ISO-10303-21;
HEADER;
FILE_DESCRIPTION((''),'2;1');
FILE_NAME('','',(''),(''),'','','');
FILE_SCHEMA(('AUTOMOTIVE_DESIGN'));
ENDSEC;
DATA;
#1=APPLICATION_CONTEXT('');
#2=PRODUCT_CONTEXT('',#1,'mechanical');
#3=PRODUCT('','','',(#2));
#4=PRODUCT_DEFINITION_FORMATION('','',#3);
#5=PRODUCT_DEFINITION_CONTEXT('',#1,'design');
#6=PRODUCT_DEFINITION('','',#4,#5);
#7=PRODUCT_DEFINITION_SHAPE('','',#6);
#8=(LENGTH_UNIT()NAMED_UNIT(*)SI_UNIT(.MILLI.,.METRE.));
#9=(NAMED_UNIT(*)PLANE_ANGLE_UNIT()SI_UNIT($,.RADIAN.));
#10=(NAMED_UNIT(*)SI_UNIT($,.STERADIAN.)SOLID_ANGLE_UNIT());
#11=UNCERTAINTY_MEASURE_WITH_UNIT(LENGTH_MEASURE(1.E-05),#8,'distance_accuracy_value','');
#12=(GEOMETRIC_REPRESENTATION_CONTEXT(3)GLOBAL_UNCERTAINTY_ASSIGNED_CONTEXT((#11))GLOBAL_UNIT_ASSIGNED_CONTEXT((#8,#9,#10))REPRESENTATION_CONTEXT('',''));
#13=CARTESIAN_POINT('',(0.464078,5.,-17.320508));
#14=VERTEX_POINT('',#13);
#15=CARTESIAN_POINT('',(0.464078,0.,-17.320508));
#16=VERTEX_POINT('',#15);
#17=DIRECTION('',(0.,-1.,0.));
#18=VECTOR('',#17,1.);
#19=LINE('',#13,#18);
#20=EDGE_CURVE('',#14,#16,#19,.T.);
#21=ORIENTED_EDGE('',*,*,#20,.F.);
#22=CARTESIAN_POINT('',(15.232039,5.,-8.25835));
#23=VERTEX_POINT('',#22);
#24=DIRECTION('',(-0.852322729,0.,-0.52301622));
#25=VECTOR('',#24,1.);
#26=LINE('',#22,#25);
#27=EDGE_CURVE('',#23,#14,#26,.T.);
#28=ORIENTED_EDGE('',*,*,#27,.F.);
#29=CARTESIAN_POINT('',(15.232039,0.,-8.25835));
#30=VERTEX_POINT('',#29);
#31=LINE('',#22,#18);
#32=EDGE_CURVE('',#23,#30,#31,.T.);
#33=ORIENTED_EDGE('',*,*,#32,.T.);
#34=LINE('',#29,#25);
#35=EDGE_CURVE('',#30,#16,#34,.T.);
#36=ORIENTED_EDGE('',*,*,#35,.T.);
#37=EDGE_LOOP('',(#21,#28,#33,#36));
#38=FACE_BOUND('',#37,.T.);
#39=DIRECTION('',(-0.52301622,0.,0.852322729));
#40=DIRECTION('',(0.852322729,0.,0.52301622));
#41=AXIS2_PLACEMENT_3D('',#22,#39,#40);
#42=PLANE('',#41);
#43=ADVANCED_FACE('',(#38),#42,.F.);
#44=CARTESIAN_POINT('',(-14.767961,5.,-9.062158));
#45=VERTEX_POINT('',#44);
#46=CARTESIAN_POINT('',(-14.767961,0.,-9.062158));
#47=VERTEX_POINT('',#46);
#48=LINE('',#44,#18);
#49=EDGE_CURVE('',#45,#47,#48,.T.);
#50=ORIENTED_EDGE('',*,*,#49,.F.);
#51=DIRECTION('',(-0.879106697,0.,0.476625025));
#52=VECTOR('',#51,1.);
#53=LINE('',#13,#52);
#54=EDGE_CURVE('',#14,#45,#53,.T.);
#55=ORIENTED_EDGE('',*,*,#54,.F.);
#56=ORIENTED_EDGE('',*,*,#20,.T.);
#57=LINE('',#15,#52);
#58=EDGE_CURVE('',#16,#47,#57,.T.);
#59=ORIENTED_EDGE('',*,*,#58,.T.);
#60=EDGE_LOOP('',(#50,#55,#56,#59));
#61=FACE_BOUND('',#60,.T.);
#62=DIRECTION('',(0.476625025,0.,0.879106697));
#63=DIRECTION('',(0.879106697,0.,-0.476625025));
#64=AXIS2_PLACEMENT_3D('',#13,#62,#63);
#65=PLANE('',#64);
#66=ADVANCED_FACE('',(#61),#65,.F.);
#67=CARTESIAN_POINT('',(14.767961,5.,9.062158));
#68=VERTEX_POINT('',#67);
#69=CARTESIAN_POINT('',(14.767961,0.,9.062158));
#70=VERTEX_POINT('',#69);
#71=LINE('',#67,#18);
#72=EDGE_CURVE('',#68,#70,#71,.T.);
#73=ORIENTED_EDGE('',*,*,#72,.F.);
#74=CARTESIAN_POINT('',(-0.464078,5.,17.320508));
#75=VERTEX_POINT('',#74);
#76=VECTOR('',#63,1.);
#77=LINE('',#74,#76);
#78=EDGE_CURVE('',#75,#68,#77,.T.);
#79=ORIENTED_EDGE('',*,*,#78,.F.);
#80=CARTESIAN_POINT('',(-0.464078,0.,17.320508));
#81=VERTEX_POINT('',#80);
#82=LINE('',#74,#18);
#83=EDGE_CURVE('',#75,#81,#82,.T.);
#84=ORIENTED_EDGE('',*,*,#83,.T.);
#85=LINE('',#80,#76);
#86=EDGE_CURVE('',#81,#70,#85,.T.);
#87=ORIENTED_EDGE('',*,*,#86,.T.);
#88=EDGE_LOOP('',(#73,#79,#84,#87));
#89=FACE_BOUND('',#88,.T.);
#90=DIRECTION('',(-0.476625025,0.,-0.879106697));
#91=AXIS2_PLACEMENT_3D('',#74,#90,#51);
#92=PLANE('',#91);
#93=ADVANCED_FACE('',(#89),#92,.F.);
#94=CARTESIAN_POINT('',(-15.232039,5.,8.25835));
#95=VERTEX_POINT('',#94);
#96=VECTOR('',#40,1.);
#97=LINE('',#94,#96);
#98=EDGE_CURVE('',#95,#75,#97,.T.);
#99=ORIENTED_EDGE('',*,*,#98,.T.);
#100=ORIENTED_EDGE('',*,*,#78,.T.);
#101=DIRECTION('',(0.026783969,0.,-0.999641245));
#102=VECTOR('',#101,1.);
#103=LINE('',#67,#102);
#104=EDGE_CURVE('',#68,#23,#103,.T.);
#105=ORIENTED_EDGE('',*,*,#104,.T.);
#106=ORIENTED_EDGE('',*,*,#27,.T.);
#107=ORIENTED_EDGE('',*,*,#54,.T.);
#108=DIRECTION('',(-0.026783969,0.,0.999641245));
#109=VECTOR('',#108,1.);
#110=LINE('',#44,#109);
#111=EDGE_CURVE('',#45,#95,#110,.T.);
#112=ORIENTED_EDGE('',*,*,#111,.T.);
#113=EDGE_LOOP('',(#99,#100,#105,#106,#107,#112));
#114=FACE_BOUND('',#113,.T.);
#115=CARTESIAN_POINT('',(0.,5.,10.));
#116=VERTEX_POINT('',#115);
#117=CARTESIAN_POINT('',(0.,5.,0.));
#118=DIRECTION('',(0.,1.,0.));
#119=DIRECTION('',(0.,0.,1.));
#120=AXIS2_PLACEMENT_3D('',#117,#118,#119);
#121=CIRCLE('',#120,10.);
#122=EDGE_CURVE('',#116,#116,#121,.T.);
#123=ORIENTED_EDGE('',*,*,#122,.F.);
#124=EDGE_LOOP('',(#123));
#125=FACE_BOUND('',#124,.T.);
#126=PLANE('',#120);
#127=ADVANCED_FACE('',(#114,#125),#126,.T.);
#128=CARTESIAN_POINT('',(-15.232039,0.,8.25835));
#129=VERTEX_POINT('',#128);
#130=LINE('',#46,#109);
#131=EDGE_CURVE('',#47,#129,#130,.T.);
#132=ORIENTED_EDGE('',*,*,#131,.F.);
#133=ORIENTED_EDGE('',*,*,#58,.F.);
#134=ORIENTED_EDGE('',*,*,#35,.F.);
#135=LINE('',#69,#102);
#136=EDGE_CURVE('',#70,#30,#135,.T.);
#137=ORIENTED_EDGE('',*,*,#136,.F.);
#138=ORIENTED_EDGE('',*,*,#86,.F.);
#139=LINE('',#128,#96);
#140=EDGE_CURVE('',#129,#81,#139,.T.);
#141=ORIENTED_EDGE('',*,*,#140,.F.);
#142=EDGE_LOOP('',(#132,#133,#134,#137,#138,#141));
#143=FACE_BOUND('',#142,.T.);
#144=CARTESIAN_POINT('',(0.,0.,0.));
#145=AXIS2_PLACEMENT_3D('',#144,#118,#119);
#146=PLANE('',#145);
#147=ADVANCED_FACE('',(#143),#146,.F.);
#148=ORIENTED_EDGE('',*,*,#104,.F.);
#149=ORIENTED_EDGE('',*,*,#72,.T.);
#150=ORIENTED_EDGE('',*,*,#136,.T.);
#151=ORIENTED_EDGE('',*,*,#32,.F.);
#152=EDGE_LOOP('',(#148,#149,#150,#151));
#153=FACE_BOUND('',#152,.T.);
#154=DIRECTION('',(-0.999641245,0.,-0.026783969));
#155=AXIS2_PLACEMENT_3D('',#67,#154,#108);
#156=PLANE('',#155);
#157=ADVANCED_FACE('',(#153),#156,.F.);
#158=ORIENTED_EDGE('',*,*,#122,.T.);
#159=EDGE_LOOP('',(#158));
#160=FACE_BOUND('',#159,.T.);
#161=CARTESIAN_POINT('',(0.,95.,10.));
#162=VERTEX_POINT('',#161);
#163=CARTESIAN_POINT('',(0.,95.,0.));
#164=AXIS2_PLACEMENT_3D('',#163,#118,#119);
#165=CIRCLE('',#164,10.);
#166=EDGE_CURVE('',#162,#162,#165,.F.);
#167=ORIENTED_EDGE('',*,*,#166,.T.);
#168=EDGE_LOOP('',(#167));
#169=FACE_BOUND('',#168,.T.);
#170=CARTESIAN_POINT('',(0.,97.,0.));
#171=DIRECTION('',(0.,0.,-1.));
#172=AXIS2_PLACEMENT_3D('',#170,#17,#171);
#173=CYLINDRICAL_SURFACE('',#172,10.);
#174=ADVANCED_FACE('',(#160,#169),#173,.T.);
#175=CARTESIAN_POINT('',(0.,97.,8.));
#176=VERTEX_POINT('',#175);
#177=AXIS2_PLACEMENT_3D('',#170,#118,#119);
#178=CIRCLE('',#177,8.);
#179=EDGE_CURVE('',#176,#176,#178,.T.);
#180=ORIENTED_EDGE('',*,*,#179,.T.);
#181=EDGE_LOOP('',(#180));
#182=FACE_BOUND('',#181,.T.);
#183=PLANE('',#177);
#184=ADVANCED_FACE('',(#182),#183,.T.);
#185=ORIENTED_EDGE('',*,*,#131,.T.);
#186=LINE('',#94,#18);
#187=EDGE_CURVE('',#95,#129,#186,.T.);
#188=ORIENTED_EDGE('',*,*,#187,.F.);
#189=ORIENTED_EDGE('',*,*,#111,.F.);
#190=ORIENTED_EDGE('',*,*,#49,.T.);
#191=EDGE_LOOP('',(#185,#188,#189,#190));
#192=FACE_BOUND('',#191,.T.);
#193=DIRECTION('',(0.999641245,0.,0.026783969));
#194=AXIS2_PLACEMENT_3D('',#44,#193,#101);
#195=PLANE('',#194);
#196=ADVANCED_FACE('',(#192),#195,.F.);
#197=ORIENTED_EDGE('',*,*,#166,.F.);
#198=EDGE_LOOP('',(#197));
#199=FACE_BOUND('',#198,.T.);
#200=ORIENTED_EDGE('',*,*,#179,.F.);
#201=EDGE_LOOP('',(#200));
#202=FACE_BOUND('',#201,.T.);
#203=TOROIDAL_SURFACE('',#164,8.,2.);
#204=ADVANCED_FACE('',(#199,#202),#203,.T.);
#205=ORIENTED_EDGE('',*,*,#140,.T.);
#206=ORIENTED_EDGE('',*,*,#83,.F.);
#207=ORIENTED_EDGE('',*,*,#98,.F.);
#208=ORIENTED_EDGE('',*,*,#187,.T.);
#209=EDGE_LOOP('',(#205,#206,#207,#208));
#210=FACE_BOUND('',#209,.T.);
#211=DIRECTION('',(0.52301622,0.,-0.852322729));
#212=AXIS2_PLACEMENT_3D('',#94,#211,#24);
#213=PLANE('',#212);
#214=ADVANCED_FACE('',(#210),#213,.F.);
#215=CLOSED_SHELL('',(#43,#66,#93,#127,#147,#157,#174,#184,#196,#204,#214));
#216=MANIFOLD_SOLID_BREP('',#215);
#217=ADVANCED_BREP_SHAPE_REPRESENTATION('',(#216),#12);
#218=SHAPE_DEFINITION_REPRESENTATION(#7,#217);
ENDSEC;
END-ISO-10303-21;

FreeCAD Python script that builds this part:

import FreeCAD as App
import Part
import Sketcher

V = App.Vector
Q = App.Units.Quantity


def edges_at(feature, points):
    """Names of the edges that pass closest to the given points."""
    edges = feature.Shape.Edges
    near = lambda p: min(range(len(edges)), key=lambda i: edges[i].distToShape(Part.Vertex(*p))[0])
    return sorted({f"Edge{near(p) + 1}" for p in points})


def add_polygon(sketch, points):
    """Adds a closed chain of lines whose ends are joined by coincident constraints."""
    first, n = sketch.GeometryCount, len(points)
    for a, b in zip(points, points[1:] + points[:1]):
        sketch.addGeometry(Part.LineSegment(App.Vector(*a, 0), App.Vector(*b, 0)), False)
    for i in range(n):
        sketch.addConstraint(Sketcher.Constraint("Coincident", first + i, 2, first + (i + 1) % n, 1))

doc = App.newDocument("Part")
params = doc.addObject("Spreadsheet::Sheet", "Params")
for row, (alias, value) in enumerate([
    ("pad1_length", "5 mm"),
    ("sketch2_diameter", "20 mm"),
    ("pad2_length", "92 mm"),
    ("fillet_radius", "2 mm"),
], start=1):
    params.set(f"A{row}", alias)
    params.set(f"B{row}", "=" + value)
    params.setAlias(f"B{row}", alias)

body = doc.addObject("PartDesign::Body", "Body")

# Sketch on XZ plane
sketch1 = body.newObject("Sketcher::SketchObject", "Sketch")
sketch1.AttachmentSupport = (doc.getObject("XZ_Plane"), [""])
sketch1.MapMode = "FlatFace"
add_polygon(sketch1, [(-15, -9), (-15, 8), (0, 17), (15, 9), (15, -8), (0, -17)])  # lines 0-5
sketch1.addConstraint([
    Sketcher.Constraint("Symmetric", 0, 2, 3, 2, -1, 1),
    Sketcher.Constraint("Symmetric", 1, 2, 4, 2, -1, 1),
    Sketcher.Constraint("Symmetric", 2, 2, 5, 2, -1, 1),
    Sketcher.Constraint("Equal", 0, 1),
    Sketcher.Constraint("Equal", 1, 2),
    Sketcher.Constraint("DistanceX", 0, 2, 2, 2, Q("30 mm")),
    Sketcher.Constraint("DistanceY", 3, 2, 0, 2, Q("16.516701 mm")),
    Sketcher.Constraint("DistanceX", 0, 2, -1, 1, Q("15.232039 mm")),
    Sketcher.Constraint("DistanceX", 1, 2, -1, 1, Q("0.464078 mm")),
])
pad1 = body.newObject("PartDesign::Pad", "Pad")
pad1.Profile = sketch1
pad1.setExpression("Length", "Params.pad1_length")
pad1.Reversed = True

# Sketch on XZ plane
sketch2 = body.newObject("Sketcher::SketchObject", "Sketch001")
sketch2.AttachmentSupport = (doc.getObject("XZ_Plane"), [""])
sketch2.MapMode = "FlatFace"
sketch2.AttachmentOffset = App.Placement(V(0, 0, -5), App.Rotation())
sketch2.addGeometry(Part.Circle(V(0, 0, 0), V(0, 0, 1), 10), False)
sketch2.addConstraint([
    Sketcher.Constraint("Coincident", 0, 3, -1, 1),
    Sketcher.Constraint("Diameter", 0, Q("20 mm")),
])
sketch2.setExpression("Constraints[1]", "Params.sketch2_diameter")
pad2 = body.newObject("PartDesign::Pad", "Pad001")
pad2.Profile = sketch2
pad2.setExpression("Length", "Params.pad2_length")
pad2.Reversed = True
doc.recompute()

fillet = body.newObject("PartDesign::Fillet", "Fillet")
fillet.Base = (pad2, edges_at(pad2, [(-10, 97, 0)]))
fillet.setExpression("Radius", "Params.fillet_radius")

doc.recompute()
